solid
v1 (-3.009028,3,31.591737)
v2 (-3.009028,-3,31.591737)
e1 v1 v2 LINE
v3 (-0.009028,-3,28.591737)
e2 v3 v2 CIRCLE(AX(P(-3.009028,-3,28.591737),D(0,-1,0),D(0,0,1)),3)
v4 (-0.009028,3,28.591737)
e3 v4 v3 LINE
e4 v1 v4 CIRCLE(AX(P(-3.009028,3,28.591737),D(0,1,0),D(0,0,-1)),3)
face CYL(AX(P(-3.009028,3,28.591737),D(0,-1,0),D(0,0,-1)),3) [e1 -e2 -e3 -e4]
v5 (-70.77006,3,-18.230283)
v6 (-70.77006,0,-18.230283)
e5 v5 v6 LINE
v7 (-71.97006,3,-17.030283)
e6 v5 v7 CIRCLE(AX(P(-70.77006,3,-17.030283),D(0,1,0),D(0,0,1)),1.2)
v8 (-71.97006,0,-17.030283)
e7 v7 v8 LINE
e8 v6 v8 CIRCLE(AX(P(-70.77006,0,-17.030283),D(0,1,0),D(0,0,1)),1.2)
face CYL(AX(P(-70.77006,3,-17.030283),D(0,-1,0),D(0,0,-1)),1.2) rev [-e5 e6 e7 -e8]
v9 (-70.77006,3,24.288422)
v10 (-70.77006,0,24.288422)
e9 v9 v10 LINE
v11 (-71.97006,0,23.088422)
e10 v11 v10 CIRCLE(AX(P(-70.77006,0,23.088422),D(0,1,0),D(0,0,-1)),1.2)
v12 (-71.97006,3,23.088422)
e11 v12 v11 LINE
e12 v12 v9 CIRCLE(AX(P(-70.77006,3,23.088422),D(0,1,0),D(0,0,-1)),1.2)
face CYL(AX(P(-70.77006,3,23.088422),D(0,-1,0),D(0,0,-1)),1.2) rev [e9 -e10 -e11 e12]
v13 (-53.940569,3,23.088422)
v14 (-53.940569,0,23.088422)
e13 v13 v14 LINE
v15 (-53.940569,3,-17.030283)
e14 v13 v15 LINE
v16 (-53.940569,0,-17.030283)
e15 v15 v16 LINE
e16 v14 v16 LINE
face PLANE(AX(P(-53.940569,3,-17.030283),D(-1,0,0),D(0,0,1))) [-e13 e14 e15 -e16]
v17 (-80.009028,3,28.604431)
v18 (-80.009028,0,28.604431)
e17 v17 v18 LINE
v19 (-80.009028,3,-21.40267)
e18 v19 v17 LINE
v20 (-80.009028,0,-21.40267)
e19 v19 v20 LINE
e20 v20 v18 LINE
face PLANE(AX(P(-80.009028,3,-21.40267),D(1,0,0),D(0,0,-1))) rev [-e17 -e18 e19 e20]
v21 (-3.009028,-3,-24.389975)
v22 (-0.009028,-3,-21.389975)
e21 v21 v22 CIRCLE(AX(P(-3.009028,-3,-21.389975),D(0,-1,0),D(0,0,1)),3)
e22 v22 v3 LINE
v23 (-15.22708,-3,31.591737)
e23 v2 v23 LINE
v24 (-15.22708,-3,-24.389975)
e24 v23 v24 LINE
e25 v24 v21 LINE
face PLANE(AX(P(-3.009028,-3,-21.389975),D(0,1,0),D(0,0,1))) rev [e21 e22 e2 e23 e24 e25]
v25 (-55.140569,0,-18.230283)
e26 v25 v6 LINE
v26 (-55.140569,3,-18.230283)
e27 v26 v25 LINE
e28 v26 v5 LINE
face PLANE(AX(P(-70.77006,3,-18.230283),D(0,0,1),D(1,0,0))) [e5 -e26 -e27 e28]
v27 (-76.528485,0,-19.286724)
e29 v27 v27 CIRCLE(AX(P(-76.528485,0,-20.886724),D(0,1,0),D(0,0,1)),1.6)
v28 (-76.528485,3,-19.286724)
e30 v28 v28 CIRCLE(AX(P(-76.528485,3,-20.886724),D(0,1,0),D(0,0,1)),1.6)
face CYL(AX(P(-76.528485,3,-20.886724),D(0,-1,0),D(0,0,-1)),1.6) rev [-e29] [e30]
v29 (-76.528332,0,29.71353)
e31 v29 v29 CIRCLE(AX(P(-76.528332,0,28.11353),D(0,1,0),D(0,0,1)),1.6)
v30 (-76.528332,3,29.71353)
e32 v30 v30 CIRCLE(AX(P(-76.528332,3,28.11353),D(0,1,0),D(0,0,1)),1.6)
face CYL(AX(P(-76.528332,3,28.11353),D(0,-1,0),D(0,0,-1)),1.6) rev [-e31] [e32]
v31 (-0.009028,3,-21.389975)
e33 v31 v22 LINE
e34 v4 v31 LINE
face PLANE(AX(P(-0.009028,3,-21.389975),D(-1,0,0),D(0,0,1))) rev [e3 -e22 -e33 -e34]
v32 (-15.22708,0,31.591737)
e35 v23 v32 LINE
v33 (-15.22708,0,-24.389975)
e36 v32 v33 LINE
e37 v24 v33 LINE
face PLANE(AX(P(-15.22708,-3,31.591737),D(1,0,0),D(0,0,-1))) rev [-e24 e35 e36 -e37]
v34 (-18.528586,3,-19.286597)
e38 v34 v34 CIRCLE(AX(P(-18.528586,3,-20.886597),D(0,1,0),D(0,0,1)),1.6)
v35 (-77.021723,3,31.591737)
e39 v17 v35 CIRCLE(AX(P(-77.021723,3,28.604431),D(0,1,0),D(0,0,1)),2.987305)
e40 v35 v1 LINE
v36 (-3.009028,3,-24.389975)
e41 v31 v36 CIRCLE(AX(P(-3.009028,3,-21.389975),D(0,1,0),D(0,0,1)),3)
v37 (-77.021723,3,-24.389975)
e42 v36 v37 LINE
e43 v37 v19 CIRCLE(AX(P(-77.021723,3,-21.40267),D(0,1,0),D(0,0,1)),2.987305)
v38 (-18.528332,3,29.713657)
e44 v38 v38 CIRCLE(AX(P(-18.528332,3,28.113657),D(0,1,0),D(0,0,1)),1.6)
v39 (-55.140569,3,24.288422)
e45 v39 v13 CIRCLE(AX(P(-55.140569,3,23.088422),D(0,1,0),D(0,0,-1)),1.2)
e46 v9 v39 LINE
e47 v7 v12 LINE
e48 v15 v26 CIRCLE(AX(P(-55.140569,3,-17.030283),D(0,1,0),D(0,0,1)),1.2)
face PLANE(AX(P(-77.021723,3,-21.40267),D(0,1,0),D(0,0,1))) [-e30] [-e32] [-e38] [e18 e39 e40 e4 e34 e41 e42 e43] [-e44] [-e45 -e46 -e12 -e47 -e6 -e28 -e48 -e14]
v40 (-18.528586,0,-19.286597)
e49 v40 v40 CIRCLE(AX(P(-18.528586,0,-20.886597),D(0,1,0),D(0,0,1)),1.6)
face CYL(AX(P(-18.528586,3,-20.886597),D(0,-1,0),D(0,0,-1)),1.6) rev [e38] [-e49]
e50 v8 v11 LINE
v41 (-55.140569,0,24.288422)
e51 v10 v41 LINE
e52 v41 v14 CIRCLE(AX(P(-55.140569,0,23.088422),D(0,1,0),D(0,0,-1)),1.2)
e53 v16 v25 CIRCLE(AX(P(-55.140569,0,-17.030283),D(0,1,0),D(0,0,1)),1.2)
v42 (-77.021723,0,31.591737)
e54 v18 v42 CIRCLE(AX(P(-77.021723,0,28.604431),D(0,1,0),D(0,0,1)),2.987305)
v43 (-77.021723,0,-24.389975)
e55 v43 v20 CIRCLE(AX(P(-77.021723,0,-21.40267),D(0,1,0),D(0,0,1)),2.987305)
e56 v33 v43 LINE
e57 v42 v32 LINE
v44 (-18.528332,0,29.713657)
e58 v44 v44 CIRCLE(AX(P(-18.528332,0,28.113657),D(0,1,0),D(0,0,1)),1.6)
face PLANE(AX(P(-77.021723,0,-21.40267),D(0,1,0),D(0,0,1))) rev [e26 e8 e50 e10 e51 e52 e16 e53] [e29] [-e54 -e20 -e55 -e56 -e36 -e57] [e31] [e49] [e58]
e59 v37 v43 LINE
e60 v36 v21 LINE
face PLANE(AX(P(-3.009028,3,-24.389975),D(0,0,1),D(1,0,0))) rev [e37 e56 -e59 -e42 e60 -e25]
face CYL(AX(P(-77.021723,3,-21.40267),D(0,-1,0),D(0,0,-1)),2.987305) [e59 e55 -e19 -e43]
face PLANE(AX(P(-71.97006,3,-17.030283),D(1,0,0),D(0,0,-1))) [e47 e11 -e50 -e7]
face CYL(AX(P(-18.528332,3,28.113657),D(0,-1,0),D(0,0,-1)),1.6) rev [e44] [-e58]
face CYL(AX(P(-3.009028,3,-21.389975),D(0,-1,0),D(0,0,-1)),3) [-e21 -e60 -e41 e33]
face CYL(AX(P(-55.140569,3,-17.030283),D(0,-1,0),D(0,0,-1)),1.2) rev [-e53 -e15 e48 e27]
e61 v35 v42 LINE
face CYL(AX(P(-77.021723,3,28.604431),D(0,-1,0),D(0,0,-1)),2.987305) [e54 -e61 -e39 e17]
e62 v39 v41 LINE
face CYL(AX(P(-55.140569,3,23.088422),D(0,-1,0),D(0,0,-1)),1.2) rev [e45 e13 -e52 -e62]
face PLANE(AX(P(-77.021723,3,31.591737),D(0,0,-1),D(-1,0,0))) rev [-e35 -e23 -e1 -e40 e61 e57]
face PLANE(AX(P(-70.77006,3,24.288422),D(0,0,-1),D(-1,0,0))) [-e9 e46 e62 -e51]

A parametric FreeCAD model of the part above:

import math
import FreeCAD as App
import Part
import Sketcher

doc = App.newDocument("Part")
body = doc.addObject("PartDesign::Body", "Body")

sketch1 = doc.addObject("Sketcher::SketchObject", "Sketch")
body.addObject(sketch1)
sketch1.AttachmentSupport = (doc.XZ_Plane, [""])
sketch1.MapMode = "FlatFace"
sketch1.addGeometry([
    Part.LineSegment(App.Vector(-0.009028, 28.591737, 0), App.Vector(-0.009028, -21.389975, 0)),
    Part.ArcOfCircle(Part.Circle(App.Vector(-3.009028, -21.389975, 0), App.Vector(0, 0, 1), 3), math.radians(-90), math.radians(0)),
    Part.LineSegment(App.Vector(-3.009028, -24.389975, 0), App.Vector(-77.021723, -24.389975, 0)),
    Part.ArcOfCircle(Part.Circle(App.Vector(-77.021723, -21.40267, 0), App.Vector(0, 0, 1), 2.987305), math.radians(180), math.radians(270)),
    Part.LineSegment(App.Vector(-80.009028, -21.40267, 0), App.Vector(-80.009028, 28.604431, 0)),
    Part.ArcOfCircle(Part.Circle(App.Vector(-77.021723, 28.604431, 0), App.Vector(0, 0, 1), 2.987305), math.radians(90), math.radians(180)),
    Part.LineSegment(App.Vector(-77.021723, 31.591737, 0), App.Vector(-3.009028, 31.591737, 0)),
    Part.ArcOfCircle(Part.Circle(App.Vector(-3.009028, 28.591737, 0), App.Vector(0, 0, 1), 3), math.radians(0), math.radians(90)),
    Part.Circle(App.Vector(-18.528332, 28.113657, 0), App.Vector(0, 0, 1), 1.6),
    Part.Circle(App.Vector(-76.528332, 28.11353, 0), App.Vector(0, 0, 1), 1.6),
    Part.Circle(App.Vector(-18.528586, -20.886597, 0), App.Vector(0, 0, 1), 1.6),
    Part.LineSegment(App.Vector(-70.77006, -18.230283, 0), App.Vector(-55.140569, -18.230283, 0)),
    Part.ArcOfCircle(Part.Circle(App.Vector(-55.140569, -17.030283, 0), App.Vector(0, 0, 1), 1.2), math.radians(-90), math.radians(0)),
    Part.LineSegment(App.Vector(-53.940569, -17.030283, 0), App.Vector(-53.940569, 23.088422, 0)),
    Part.ArcOfCircle(Part.Circle(App.Vector(-55.140569, 23.088422, 0), App.Vector(0, 0, 1), 1.2), math.radians(0), math.radians(90)),
    Part.LineSegment(App.Vector(-55.140569, 24.288422, 0), App.Vector(-70.77006, 24.288422, 0)),
    Part.ArcOfCircle(Part.Circle(App.Vector(-70.77006, 23.088422, 0), App.Vector(0, 0, 1), 1.2), math.radians(90), math.radians(180)),
    Part.LineSegment(App.Vector(-71.97006, 23.088422, 0), App.Vector(-71.97006, -17.030283, 0)),
    Part.ArcOfCircle(Part.Circle(App.Vector(-70.77006, -17.030283, 0), App.Vector(0, 0, 1), 1.2), math.radians(-180), math.radians(-90)),
    Part.Circle(App.Vector(-76.528485, -20.886724, 0), App.Vector(0, 0, 1), 1.6),
], False)
sketch1.addConstraint([
    Sketcher.Constraint("Tangent", 0, 2, 1, 2),
    Sketcher.Constraint("Tangent", 1, 1, 2, 1),
    Sketcher.Constraint("Tangent", 2, 2, 3, 2),
    Sketcher.Constraint("Tangent", 3, 1, 4, 1),
    Sketcher.Constraint("Tangent", 4, 2, 5, 2),
    Sketcher.Constraint("Tangent", 5, 1, 6, 1),
    Sketcher.Constraint("Tangent", 6, 2, 7, 2),
    Sketcher.Constraint("Tangent", 7, 1, 0, 1),
    Sketcher.Constraint("Tangent", 11, 2, 12, 1),
    Sketcher.Constraint("Tangent", 12, 2, 13, 1),
    Sketcher.Constraint("Tangent", 13, 2, 14, 1),
    Sketcher.Constraint("Tangent", 14, 2, 15, 1),
    Sketcher.Constraint("Tangent", 15, 2, 16, 1),
    Sketcher.Constraint("Tangent", 16, 2, 17, 1),
    Sketcher.Constraint("Tangent", 17, 2, 18, 1),
    Sketcher.Constraint("Tangent", 18, 2, 11, 1),
    Sketcher.Constraint("Vertical", 0),
    Sketcher.Constraint("Horizontal", 2),
    Sketcher.Constraint("Vertical", 4),
    Sketcher.Constraint("Horizontal", 6),
    Sketcher.Constraint("Horizontal", 11),
    Sketcher.Constraint("Vertical", 13),
    Sketcher.Constraint("Horizontal", 15),
    Sketcher.Constraint("Vertical", 17),
    Sketcher.Constraint("Equal", 3, 5),
    Sketcher.Constraint("Equal", 1, 7),
    Sketcher.Constraint("Equal", 8, 9),
    Sketcher.Constraint("Equal", 9, 10),
    Sketcher.Constraint("Equal", 12, 14),
    Sketcher.Constraint("Equal", 14, 16),
    Sketcher.Constraint("Equal", 16, 18),
    Sketcher.Constraint("Equal", 10, 19),
    Sketcher.Constraint("Radius", 1, 3.0),
    Sketcher.Constraint("Diameter", 8, 3.2),
    Sketcher.Constraint("Radius", 12, 1.2),
    Sketcher.Constraint("DistanceX", 9, 3, 8, 3, 58.0),
    Sketcher.Constraint("DistanceY", 4, 1, 4, 2, 50.007102),
    Sketcher.Constraint("Radius", 3, 2.987305),
    Sketcher.Constraint("DistanceX", 11, 1, 11, 2, 15.629491),
    Sketcher.Constraint("DistanceY", 9, 3, 5, 3, 0.490902),
    Sketcher.Constraint("DistanceX", 2, 2, 2, 1, 74.012695),
    Sketcher.Constraint("DistanceY", 13, 1, 13, 2, 40.118705),
    Sketcher.Constraint("DistanceX", 1, 3, -1, 1, 3.009028),
    Sketcher.Constraint("DistanceY", 3, 3, -1, 1, 21.40267),
    Sketcher.Constraint("DistanceX", 12, 3, -1, 1, 55.140569),
    Sketcher.Constraint("DistanceY", 8, 3, 7, 3, 0.47808),
    Sketcher.Constraint("DistanceX", 5, 3, 8, 3, 58.493391),
    Sketcher.Constraint("DistanceX", 10, 3, 1, 3, 15.519558),
    Sketcher.Constraint("DistanceY", 1, 3, 10, 3, 0.503378),
    Sketcher.Constraint("DistanceY", 14, 3, 5, 3, 5.516009),
    Sketcher.Constraint("DistanceX", 3, 3, 19, 3, 0.493239),
    Sketcher.Constraint("DistanceY", 19, 3, 18, 3, 3.856441),
])
pad1 = doc.addObject("PartDesign::Pad", "Pad")
body.addObject(pad1)
pad1.Profile = sketch1
pad1.Length = 3
pad1.Reversed = True

sketch2 = doc.addObject("Sketcher::SketchObject", "Sketch001")
body.addObject(sketch2)
sketch2.AttachmentSupport = (doc.XZ_Plane, [""])
sketch2.MapMode = "FlatFace"
sketch2.AttachmentOffset = App.Placement(App.Vector(0, 0, 3), App.Rotation())
sketch2.addGeometry([
    Part.LineSegment(App.Vector(-3.009028, 31.591737, 0), App.Vector(-15.22708, 31.591737, 0)),
    Part.LineSegment(App.Vector(-15.22708, 31.591737, 0), App.Vector(-15.22708, -24.389975, 0)),
    Part.LineSegment(App.Vector(-15.22708, -24.389975, 0), App.Vector(-3.009028, -24.389975, 0)),
    Part.ArcOfCircle(Part.Circle(App.Vector(-3.009028, -21.389975, 0), App.Vector(0, 0, 1), 3), math.radians(-90), math.radians(0)),
    Part.LineSegment(App.Vector(-0.009028, -21.389975, 0), App.Vector(-0.009028, 28.591737, 0)),
    Part.ArcOfCircle(Part.Circle(App.Vector(-3.009028, 28.591737, 0), App.Vector(0, 0, 1), 3), math.radians(0), math.radians(90)),
], False)
sketch2.addConstraint([
    Sketcher.Constraint("Coincident", 0, 2, 1, 1),
    Sketcher.Constraint("Coincident", 1, 2, 2, 1),
    Sketcher.Constraint("Tangent", 2, 2, 3, 1),
    Sketcher.Constraint("Tangent", 3, 2, 4, 1),
    Sketcher.Constraint("Tangent", 4, 2, 5, 1),
    Sketcher.Constraint("Tangent", 5, 2, 0, 1),
    Sketcher.Constraint("Horizontal", 0),
    Sketcher.Constraint("Vertical", 1),
    Sketcher.Constraint("Horizontal", 2),
    Sketcher.Constraint("Vertical", 4),
    Sketcher.Constraint("Equal", 3, 5),
    Sketcher.Constraint("Radius", 3, 3.0),
    Sketcher.Constraint("DistanceX", 0, 2, 0, 1, 12.218051),
    Sketcher.Constraint("DistanceY", 1, 2, 1, 1, 55.981712),
    Sketcher.Constraint("DistanceX", 3, 3, -1, 1, 3.009028),
    Sketcher.Constraint("DistanceY", 3, 3, -1, 1, 21.389975),
])
pad2 = doc.addObject("PartDesign::Pad", "Pad001")
body.addObject(pad2)
pad2.Profile = sketch2
pad2.Length = 3
pad2.Reversed = True

doc.recompute()
